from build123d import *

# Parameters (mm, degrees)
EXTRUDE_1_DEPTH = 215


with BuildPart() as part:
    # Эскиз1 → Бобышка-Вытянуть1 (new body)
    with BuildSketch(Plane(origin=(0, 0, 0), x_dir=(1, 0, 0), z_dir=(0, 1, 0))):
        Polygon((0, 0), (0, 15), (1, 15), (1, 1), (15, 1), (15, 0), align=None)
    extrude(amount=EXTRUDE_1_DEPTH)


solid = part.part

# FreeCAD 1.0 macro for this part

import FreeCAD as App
import Part
import Sketcher

V = App.Vector

doc = App.newDocument("Part")
params = doc.addObject("Spreadsheet::Sheet", "Params")
for row, (alias, value) in enumerate([
    ("sketch1_width", "15 mm"),
    ("sketch1_width2", "14 mm"),
    ("pad1_length", "215 mm"),
], start=1):
    params.set(f"A{row}", alias)
    params.set(f"B{row}", "=" + value)
    params.setAlias(f"B{row}", alias)

body = doc.addObject("PartDesign::Body", "Body")

sketch1 = body.newObject("Sketcher::SketchObject", "Sketch")
sketch1.AttachmentSupport = (doc.getObject("XZ_Plane"), [""])
sketch1.MapMode = "FlatFace"
sketch1.addGeometry(Part.LineSegment(V(0, -15, 0), V(0, 0, 0)), False)
sketch1.addGeometry(Part.LineSegment(V(0, 0, 0), V(15, 0, 0)), False)
sketch1.addGeometry(Part.LineSegment(V(15, 0, 0), V(15, -1, 0)), False)
sketch1.addGeometry(Part.LineSegment(V(15, -1, 0), V(1, -1, 0)), False)
sketch1.addGeometry(Part.LineSegment(V(1, -1, 0), V(1, -15, 0)), False)
sketch1.addGeometry(Part.LineSegment(V(1, -15, 0), V(0, -15, 0)), False)
sketch1.addConstraint(Sketcher.Constraint("Coincident", 0, 2, 1, 1))
sketch1.addConstraint(Sketcher.Constraint("Coincident", 1, 2, 2, 1))
sketch1.addConstraint(Sketcher.Constraint("Coincident", 2, 2, 3, 1))
sketch1.addConstraint(Sketcher.Constraint("Coincident", 3, 2, 4, 1))
sketch1.addConstraint(Sketcher.Constraint("Coincident", 4, 2, 5, 1))
sketch1.addConstraint(Sketcher.Constraint("Coincident", 5, 2, 0, 1))
sketch1.addConstraint(Sketcher.Constraint("Vertical", 0))
sketch1.addConstraint(Sketcher.Constraint("Horizontal", 1))
sketch1.addConstraint(Sketcher.Constraint("Vertical", 2))
sketch1.addConstraint(Sketcher.Constraint("Horizontal", 3))
sketch1.addConstraint(Sketcher.Constraint("Vertical", 4))
sketch1.addConstraint(Sketcher.Constraint("Horizontal", 5))
sketch1.addConstraint(Sketcher.Constraint("Coincident", 0, 2, -1, 1))
sketch1.addConstraint(Sketcher.Constraint("Equal", 1, 0))
sketch1.addConstraint(Sketcher.Constraint("Equal", 5, 2))
sketch1.addConstraint(Sketcher.Constraint("DistanceX", 1, 1, 1, 2, 15.0))
sketch1.addConstraint(Sketcher.Constraint("DistanceX", 3, 2, 3, 1, 14.0))
sketch1.setExpression("Constraints[15]", "Params.sketch1_width")
sketch1.setExpression("Constraints[16]", "Params.sketch1_width2")
pad1 = body.newObject("PartDesign::Pad", "Pad")
pad1.Profile = sketch1
pad1.setExpression("Length", "Params.pad1_length")
pad1.Reversed = True

doc.recompute()
